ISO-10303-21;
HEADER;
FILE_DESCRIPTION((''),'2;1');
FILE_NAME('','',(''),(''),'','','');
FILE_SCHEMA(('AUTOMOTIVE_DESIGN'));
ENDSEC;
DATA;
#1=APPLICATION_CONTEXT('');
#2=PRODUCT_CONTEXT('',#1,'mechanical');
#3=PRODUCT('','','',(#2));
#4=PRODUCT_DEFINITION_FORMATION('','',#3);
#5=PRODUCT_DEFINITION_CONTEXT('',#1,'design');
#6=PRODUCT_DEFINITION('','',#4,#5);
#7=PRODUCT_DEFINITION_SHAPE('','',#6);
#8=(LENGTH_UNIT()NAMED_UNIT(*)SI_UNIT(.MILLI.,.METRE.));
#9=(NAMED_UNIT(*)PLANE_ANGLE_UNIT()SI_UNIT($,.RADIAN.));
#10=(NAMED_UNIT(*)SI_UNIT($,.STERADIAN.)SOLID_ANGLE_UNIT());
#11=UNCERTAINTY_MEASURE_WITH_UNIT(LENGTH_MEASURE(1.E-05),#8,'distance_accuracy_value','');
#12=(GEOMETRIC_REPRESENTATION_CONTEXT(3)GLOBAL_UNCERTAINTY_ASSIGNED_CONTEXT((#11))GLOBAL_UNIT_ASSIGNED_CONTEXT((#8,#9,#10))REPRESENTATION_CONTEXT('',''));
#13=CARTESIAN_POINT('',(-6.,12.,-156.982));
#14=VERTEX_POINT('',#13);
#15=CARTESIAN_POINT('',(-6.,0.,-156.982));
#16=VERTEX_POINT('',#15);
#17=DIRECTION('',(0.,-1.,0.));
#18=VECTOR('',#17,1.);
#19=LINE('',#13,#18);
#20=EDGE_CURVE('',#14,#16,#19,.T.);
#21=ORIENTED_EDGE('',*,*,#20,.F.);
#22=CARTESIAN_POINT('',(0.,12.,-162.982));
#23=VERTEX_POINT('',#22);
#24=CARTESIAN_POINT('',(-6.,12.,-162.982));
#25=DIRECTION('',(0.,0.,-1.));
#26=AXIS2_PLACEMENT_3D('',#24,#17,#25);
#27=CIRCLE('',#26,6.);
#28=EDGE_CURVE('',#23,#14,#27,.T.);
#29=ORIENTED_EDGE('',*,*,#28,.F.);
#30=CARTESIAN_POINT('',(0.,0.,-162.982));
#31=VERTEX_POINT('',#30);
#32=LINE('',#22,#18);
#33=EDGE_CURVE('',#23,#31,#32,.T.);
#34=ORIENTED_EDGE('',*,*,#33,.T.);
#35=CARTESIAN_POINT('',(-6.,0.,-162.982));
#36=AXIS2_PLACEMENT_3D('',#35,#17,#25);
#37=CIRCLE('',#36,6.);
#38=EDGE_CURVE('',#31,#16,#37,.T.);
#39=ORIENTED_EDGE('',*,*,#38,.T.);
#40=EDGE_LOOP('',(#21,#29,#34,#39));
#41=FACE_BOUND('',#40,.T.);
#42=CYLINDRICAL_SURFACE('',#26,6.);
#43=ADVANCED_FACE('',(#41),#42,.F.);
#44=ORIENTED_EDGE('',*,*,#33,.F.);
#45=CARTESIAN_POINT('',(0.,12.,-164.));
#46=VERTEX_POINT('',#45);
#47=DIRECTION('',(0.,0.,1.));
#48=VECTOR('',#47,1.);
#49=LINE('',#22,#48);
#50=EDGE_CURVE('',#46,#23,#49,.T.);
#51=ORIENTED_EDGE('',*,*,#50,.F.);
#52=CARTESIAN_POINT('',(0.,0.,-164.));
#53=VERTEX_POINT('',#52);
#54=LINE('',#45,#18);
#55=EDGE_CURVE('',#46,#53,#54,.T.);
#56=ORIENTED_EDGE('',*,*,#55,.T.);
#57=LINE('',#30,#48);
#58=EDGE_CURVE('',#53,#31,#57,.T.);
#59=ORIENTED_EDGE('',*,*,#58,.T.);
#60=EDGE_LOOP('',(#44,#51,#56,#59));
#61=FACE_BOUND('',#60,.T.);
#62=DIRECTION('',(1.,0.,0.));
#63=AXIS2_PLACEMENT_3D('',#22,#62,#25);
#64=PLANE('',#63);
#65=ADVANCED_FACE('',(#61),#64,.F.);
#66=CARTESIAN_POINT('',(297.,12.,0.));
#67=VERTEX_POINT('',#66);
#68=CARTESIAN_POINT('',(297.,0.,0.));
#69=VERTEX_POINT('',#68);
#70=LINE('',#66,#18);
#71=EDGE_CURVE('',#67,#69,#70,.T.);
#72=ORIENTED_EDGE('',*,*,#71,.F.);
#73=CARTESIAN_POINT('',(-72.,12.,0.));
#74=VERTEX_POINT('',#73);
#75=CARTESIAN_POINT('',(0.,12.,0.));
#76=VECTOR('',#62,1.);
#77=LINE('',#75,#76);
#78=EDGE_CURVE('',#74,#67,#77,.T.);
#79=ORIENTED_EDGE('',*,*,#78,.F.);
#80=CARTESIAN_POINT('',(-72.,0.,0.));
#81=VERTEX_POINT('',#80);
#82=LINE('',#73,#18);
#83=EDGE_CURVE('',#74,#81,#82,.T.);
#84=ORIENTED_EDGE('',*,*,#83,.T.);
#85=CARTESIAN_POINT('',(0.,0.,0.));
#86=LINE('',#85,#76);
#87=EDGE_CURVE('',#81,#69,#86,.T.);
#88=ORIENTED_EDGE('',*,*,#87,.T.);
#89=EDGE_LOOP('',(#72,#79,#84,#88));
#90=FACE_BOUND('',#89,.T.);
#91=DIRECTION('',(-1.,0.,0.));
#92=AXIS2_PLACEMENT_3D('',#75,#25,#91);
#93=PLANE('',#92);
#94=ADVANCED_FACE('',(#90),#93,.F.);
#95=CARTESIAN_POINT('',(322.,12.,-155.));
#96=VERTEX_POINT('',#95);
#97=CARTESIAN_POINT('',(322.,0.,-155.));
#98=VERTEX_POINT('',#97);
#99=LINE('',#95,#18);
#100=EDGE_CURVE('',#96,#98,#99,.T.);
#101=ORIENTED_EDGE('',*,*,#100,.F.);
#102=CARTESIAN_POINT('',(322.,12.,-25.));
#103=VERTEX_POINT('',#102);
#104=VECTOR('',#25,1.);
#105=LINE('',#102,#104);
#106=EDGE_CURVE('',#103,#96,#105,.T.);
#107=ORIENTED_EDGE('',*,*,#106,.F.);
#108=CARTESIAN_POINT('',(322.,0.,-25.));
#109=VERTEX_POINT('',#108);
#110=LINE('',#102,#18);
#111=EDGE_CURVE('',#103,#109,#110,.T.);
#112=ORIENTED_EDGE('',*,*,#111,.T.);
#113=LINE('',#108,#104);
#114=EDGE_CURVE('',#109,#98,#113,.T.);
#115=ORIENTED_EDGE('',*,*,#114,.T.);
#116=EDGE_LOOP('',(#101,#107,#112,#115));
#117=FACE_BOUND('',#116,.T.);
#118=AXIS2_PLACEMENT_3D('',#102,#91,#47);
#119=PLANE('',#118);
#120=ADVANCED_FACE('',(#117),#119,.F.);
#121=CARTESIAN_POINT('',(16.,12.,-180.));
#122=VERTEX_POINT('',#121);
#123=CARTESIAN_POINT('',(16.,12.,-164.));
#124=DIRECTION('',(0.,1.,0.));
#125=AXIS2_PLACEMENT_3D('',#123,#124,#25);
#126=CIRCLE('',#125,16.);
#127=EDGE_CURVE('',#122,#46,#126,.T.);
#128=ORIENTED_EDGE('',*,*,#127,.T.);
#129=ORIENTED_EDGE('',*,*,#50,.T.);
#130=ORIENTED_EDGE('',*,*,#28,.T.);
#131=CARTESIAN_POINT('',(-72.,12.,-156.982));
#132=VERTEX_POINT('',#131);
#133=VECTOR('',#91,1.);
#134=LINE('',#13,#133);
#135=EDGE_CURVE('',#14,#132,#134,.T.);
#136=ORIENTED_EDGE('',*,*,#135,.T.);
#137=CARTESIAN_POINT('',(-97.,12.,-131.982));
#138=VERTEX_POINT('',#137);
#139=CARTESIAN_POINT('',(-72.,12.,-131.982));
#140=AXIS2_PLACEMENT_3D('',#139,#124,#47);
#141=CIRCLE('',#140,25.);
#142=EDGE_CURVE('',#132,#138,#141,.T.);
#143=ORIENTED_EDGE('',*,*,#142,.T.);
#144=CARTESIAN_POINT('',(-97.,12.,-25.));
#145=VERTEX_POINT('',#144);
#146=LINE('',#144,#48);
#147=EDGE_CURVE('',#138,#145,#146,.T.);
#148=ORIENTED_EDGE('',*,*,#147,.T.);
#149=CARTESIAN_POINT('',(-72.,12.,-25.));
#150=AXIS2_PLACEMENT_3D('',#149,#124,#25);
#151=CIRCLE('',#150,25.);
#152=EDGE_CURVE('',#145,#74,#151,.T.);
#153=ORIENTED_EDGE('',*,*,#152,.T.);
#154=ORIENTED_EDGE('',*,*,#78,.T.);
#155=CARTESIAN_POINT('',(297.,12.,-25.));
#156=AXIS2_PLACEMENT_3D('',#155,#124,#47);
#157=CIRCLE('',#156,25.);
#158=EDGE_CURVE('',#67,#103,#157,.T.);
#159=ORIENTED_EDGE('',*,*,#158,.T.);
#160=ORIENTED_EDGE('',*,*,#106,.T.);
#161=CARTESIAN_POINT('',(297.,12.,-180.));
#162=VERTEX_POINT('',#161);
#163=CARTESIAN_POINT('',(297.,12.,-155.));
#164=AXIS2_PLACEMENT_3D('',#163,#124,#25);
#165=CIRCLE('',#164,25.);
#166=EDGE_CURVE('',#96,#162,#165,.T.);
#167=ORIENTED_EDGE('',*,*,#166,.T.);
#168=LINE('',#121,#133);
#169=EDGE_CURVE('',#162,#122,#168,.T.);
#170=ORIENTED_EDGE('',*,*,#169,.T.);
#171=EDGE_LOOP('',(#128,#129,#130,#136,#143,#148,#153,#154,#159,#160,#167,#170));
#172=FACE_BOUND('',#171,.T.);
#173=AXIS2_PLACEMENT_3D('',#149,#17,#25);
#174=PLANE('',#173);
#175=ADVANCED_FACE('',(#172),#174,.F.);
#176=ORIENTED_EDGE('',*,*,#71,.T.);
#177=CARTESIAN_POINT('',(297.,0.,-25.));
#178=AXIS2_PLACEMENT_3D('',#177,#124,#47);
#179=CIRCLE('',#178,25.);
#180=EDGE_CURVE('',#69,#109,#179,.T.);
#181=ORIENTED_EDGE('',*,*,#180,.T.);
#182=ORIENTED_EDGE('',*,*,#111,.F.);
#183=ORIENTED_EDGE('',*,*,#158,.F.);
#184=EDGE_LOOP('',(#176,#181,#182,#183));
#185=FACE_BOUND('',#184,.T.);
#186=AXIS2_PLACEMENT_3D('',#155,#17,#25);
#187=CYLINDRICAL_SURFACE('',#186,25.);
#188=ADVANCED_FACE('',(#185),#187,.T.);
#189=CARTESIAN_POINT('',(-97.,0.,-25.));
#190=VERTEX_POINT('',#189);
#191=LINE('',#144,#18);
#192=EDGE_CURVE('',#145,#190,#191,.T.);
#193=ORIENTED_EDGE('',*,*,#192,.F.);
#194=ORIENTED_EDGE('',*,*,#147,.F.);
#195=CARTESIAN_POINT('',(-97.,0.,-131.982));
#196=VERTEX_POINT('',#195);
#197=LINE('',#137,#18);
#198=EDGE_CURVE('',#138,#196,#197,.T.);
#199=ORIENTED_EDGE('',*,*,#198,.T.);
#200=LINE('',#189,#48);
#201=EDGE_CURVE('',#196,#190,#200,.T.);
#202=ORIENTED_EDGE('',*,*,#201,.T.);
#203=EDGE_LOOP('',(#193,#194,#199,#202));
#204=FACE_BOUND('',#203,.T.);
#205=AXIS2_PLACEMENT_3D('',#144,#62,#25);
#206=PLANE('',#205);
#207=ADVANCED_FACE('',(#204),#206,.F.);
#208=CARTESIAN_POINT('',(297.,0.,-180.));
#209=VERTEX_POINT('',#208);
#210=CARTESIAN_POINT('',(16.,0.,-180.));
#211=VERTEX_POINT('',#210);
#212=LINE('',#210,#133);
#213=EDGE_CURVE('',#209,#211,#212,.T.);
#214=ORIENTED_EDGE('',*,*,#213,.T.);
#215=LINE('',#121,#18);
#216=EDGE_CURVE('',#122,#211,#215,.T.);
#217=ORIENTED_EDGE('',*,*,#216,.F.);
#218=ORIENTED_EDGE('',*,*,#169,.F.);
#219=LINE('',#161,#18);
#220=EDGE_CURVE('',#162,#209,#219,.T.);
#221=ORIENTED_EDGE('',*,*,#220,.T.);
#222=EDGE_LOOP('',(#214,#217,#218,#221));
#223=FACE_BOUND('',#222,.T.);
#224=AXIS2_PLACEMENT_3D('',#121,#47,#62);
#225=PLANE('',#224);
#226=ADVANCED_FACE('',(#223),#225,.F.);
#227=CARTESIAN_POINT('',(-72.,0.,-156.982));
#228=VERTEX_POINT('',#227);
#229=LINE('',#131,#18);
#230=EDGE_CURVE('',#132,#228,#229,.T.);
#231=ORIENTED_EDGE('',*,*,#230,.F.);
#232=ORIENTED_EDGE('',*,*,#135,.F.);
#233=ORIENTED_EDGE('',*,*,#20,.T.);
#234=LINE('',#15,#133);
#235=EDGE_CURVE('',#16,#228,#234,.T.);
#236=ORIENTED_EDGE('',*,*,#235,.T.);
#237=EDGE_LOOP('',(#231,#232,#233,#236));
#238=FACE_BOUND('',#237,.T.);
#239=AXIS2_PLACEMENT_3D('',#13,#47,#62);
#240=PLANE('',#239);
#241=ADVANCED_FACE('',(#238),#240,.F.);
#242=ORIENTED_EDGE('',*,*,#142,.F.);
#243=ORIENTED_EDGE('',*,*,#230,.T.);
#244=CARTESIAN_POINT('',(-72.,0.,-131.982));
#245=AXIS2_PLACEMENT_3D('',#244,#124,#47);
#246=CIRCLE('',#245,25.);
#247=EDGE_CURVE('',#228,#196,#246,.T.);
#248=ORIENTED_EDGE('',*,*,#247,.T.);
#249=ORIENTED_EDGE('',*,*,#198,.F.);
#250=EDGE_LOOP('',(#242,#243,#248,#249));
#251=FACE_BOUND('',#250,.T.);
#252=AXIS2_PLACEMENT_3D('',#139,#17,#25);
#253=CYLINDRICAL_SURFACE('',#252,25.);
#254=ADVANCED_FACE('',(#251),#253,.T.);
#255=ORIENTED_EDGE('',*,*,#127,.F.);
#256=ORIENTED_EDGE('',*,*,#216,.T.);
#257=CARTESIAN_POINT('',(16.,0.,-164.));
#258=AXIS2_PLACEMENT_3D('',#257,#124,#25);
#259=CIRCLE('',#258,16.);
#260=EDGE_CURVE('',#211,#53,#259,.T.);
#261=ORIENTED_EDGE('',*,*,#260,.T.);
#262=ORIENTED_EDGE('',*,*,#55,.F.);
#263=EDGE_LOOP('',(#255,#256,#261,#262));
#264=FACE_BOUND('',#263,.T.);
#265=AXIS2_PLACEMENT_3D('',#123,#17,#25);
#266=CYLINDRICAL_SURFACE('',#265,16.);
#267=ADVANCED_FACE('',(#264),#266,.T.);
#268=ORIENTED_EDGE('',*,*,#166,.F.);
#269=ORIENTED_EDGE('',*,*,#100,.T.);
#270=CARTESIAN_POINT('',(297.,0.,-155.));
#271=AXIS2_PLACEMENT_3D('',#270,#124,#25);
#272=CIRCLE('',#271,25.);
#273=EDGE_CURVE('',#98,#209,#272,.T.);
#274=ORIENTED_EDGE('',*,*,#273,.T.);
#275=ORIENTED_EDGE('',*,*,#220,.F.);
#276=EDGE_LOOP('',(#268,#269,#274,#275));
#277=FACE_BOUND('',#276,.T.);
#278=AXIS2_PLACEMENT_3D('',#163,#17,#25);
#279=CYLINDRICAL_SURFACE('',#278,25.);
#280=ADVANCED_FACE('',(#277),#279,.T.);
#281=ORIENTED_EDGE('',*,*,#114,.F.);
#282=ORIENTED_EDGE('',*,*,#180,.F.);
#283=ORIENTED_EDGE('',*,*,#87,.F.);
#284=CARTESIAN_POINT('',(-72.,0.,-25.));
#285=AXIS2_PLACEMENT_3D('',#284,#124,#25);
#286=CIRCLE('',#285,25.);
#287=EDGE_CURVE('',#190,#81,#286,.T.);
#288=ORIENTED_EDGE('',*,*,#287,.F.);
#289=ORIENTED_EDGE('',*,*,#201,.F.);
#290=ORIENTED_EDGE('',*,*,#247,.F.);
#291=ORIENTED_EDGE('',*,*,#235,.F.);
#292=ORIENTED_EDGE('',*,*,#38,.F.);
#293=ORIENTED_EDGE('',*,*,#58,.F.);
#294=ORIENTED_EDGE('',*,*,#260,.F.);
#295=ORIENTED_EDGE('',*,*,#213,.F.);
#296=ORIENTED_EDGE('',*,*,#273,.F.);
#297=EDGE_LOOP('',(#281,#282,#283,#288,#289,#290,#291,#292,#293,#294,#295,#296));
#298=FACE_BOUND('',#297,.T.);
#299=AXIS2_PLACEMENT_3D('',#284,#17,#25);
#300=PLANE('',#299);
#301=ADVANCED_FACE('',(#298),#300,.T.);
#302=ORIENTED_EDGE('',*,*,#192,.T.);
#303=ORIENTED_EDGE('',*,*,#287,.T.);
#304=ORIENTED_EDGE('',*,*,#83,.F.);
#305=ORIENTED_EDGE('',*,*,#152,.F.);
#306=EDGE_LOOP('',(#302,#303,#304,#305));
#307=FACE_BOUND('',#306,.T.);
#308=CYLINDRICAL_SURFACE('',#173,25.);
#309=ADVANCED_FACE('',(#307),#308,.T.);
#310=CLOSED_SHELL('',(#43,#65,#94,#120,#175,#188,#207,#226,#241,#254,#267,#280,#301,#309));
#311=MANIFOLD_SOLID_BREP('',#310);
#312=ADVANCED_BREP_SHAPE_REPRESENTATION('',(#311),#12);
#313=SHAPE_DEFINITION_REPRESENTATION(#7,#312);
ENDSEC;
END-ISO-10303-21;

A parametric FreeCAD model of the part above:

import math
import FreeCAD as App
import Part
import Sketcher
from FreeCAD import Vector
Q = App.Units.Quantity

doc = App.newDocument("Part")
body = doc.addObject("PartDesign::Body", "Body")

sketch1 = doc.addObject("Sketcher::SketchObject", "Sketch")
body.addObject(sketch1)
sketch1.AttachmentSupport = (doc.XZ_Plane, [""])
sketch1.MapMode = "FlatFace"
sketch1.addGeometry([
    Part.ArcOfCircle(Part.Circle(Vector(297, -25, 0), Vector(0, 0, 1), 25), math.radians(0), math.radians(90)),
    Part.LineSegment(Vector(322, -25, 0), Vector(322, -155, 0)),
    Part.ArcOfCircle(Part.Circle(Vector(297, -155, 0), Vector(0, 0, 1), 25), math.radians(-90), math.radians(0)),
    Part.LineSegment(Vector(297, -180, 0), Vector(16, -180, 0)),
    Part.ArcOfCircle(Part.Circle(Vector(16, -164, 0), Vector(0, 0, 1), 16), math.radians(180), math.radians(270)),
    Part.LineSegment(Vector(0, -164, 0), Vector(0, -163, 0)),
    Part.ArcOfCircle(Part.Circle(Vector(-6, -163, 0), Vector(0, 0, 1), 6), math.radians(0), math.radians(90)),
    Part.LineSegment(Vector(-6, -157, 0), Vector(-72, -157, 0)),
    Part.ArcOfCircle(Part.Circle(Vector(-72, -132, 0), Vector(0, 0, 1), 25), math.radians(180), math.radians(270)),
    Part.LineSegment(Vector(-97, -132, 0), Vector(-97, -25, 0)),
    Part.ArcOfCircle(Part.Circle(Vector(-72, -25, 0), Vector(0, 0, 1), 25), math.radians(90), math.radians(180)),
    Part.LineSegment(Vector(-72, 0, 0), Vector(297, 0, 0)),
], False)
sketch1.addConstraint([
    Sketcher.Constraint("Tangent", 0, 1, 1, 1),
    Sketcher.Constraint("Tangent", 1, 2, 2, 2),
    Sketcher.Constraint("Tangent", 2, 1, 3, 1),
    Sketcher.Constraint("Tangent", 3, 2, 4, 2),
    Sketcher.Constraint("Tangent", 4, 1, 5, 1),
    Sketcher.Constraint("Tangent", 5, 2, 6, 1),
    Sketcher.Constraint("Tangent", 6, 2, 7, 1),
    Sketcher.Constraint("Tangent", 7, 2, 8, 2),
    Sketcher.Constraint("Tangent", 8, 1, 9, 1),
    Sketcher.Constraint("Tangent", 9, 2, 10, 2),
    Sketcher.Constraint("Tangent", 10, 1, 11, 1),
    Sketcher.Constraint("Tangent", 11, 2, 0, 2),
    Sketcher.Constraint("Vertical", 1),
    Sketcher.Constraint("Horizontal", 3),
    Sketcher.Constraint("Vertical", 5),
    Sketcher.Constraint("Horizontal", 7),
    Sketcher.Constraint("Vertical", 9),
    Sketcher.Constraint("Horizontal", 11),
    Sketcher.Constraint("Equal", 0, 2),
    Sketcher.Constraint("Equal", 2, 8),
    Sketcher.Constraint("Equal", 8, 10),
    Sketcher.Constraint("PointOnObject", 4, 1, -2),
    Sketcher.Constraint("PointOnObject", 10, 1, -1),
    Sketcher.Constraint("Radius", 0, Q("25 mm")),
    Sketcher.Constraint("Radius", 4, Q("16 mm")),
    Sketcher.Constraint("Radius", 6, Q("6 mm")),
    Sketcher.Constraint("DistanceX", 3, 2, 3, 1, Q("281 mm")),
    Sketcher.Constraint("DistanceX", 7, 2, 7, 1, Q("66 mm")),
    Sketcher.Constraint("DistanceY", 1, 2, 1, 1, Q("130 mm")),
    Sketcher.Constraint("DistanceY", 5, 1, 5, 2, Q("1.018 mm")),
])
pad1 = doc.addObject("PartDesign::Pad", "Pad")
body.addObject(pad1)
pad1.Profile = sketch1
pad1.Length = 12
pad1.Reversed = True

doc.recompute()
